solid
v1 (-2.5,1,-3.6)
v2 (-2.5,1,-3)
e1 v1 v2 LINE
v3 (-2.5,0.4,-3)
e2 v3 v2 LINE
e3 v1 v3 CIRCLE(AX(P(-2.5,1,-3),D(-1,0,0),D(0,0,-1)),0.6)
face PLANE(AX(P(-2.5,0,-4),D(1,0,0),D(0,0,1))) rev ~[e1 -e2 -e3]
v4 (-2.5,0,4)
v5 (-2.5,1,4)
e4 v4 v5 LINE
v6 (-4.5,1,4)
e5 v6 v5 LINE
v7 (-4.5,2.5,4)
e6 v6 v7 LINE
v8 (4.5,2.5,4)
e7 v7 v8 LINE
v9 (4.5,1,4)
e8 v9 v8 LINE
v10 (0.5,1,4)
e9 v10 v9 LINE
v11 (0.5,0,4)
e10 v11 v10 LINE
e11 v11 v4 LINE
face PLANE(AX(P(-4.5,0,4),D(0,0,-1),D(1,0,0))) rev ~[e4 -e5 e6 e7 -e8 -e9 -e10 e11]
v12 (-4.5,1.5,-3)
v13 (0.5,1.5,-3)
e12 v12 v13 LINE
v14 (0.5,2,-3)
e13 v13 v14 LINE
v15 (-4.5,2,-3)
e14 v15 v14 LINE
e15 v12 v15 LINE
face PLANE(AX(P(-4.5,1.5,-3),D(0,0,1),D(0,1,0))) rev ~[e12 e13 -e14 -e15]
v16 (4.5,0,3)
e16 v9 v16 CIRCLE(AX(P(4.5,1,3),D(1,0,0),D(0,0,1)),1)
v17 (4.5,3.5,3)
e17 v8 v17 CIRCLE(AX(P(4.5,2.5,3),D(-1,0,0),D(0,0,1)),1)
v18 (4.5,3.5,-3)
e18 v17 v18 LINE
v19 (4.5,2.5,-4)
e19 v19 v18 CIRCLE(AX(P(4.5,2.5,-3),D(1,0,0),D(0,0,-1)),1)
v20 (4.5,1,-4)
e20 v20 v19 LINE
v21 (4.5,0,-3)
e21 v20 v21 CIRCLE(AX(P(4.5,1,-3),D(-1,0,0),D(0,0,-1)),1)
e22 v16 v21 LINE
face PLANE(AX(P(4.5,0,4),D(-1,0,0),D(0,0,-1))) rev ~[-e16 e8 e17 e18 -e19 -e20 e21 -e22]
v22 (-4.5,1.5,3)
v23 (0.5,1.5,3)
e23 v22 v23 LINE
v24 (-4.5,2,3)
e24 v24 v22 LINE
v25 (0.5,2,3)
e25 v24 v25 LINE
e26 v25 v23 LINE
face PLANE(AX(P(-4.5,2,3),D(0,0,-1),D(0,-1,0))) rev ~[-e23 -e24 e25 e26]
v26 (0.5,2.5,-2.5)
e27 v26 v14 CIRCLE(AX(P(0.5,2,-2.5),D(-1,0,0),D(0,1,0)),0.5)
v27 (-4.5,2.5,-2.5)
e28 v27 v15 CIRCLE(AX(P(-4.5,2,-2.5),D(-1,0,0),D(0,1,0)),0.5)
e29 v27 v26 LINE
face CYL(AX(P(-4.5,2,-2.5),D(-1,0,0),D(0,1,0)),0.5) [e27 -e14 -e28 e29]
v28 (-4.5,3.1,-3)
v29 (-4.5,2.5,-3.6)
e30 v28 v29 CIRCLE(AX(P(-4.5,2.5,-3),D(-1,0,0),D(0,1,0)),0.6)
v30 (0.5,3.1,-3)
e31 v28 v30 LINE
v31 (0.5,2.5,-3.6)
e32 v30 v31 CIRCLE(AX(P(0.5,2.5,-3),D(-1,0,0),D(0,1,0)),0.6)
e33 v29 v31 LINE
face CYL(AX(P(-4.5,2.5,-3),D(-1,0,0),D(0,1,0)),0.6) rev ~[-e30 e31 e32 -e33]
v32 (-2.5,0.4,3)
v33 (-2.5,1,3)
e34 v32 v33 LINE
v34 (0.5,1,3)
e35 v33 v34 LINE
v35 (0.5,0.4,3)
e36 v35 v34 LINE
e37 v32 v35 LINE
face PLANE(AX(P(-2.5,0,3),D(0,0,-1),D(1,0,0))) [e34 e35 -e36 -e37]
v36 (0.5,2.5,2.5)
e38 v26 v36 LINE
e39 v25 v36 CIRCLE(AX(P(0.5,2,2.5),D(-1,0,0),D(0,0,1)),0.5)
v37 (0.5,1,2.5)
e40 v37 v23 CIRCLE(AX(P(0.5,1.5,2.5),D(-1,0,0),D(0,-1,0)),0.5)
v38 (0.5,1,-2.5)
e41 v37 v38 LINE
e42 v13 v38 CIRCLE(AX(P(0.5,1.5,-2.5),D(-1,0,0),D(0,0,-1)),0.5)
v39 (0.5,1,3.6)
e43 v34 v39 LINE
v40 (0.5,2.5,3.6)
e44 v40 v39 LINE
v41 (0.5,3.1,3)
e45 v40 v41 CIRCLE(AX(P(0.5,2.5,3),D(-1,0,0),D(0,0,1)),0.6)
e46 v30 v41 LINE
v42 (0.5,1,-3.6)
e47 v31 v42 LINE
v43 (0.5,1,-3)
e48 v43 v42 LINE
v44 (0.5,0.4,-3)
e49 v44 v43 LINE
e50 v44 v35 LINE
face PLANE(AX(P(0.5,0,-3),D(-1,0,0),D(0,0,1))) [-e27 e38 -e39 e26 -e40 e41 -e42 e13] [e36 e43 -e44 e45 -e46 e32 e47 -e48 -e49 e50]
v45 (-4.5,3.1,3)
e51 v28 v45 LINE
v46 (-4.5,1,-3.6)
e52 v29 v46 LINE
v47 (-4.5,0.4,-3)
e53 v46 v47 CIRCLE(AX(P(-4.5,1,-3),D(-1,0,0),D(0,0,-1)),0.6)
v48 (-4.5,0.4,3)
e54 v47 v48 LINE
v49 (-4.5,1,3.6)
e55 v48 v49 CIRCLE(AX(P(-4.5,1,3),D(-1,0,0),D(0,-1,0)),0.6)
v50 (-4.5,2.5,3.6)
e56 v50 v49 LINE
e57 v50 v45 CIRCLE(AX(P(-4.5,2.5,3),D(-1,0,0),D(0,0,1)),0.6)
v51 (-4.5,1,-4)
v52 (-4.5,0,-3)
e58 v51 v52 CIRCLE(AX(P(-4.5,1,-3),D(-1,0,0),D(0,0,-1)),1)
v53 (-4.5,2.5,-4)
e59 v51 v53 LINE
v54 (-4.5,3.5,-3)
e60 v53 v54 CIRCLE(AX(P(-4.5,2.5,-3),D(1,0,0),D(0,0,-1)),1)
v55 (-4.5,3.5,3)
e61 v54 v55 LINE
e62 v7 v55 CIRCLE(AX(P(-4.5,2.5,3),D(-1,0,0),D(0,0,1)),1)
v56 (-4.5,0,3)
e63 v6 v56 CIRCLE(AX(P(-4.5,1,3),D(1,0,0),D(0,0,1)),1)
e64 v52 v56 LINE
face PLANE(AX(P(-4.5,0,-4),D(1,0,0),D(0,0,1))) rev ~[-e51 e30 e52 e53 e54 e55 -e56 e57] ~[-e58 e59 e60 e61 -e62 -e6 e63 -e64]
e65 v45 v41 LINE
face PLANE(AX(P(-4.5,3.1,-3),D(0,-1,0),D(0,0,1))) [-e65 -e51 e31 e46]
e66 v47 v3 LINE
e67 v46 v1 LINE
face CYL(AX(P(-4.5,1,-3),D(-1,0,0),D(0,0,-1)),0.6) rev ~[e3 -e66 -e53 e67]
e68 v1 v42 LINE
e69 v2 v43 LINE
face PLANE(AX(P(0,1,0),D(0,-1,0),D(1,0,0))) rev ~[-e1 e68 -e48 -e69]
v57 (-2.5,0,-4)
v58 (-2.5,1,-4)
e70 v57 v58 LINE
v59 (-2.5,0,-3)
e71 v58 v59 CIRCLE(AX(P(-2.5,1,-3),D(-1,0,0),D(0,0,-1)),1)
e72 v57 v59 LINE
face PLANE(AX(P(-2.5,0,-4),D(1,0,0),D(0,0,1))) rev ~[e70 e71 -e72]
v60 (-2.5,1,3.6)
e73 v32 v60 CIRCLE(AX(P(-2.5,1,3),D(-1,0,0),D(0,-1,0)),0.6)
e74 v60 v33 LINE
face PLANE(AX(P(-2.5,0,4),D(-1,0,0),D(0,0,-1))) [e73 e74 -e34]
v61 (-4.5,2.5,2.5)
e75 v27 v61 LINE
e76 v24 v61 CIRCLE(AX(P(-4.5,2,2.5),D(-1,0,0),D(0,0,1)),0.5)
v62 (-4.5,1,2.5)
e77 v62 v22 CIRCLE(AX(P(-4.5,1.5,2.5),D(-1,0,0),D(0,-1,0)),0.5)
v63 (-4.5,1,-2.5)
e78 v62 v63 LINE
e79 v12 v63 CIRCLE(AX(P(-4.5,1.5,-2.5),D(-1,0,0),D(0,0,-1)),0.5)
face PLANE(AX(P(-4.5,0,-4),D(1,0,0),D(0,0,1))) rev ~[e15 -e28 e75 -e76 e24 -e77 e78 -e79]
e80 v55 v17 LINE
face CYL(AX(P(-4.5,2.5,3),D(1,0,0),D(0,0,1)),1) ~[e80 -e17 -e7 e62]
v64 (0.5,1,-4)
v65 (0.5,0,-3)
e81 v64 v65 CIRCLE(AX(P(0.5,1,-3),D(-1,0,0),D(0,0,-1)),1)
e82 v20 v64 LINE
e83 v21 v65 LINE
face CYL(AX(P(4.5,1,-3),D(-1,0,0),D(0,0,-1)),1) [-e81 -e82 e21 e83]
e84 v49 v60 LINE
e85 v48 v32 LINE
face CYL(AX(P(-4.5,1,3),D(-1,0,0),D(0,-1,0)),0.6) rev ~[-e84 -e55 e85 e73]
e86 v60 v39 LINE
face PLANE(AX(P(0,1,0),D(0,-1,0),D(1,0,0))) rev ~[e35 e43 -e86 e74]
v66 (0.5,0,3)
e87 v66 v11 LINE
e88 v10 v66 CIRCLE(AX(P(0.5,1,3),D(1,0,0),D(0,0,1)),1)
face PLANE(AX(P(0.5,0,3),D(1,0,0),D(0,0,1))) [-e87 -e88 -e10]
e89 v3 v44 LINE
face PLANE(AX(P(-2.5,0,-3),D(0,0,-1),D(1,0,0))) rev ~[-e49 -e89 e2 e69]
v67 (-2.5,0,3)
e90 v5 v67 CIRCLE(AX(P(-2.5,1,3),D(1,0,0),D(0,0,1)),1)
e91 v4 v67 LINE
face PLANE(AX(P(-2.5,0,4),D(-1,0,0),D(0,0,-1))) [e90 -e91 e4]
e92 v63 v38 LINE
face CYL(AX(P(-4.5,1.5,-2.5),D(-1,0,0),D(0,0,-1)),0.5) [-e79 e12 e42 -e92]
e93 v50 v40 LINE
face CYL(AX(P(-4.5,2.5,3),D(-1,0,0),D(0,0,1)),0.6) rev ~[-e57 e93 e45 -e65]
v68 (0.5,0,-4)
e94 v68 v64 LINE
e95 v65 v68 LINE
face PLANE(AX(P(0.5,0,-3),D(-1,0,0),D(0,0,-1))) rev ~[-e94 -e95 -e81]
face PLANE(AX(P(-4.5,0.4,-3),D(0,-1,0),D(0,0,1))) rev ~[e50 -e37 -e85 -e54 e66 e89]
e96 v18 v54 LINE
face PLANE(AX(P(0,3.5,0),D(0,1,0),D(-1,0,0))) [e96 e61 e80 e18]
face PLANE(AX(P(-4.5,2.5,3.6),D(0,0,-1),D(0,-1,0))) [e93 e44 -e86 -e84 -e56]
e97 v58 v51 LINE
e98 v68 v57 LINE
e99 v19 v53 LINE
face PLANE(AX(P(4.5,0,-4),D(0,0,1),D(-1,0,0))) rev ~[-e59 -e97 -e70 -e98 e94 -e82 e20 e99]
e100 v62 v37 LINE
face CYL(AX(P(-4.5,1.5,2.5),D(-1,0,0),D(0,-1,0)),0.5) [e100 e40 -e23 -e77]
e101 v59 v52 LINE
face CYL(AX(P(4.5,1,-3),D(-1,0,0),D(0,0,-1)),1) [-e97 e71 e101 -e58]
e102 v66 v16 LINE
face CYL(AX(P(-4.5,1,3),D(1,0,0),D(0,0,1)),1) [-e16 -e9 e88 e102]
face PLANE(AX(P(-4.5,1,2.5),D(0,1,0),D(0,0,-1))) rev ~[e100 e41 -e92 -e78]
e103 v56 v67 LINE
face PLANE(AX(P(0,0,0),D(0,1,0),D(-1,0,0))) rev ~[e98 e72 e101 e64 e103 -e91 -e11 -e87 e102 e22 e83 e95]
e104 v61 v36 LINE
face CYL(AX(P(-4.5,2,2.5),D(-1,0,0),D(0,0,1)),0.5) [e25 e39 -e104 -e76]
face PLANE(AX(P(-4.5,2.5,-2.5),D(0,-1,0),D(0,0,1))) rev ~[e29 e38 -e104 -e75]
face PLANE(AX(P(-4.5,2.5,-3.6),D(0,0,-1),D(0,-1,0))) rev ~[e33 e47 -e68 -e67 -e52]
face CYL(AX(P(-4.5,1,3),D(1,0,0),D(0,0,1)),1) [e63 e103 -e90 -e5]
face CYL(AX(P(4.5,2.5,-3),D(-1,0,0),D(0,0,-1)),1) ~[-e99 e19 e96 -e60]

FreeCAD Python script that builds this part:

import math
import FreeCAD as App
import Part
import Sketcher
Q = App.Units.Quantity


def edges_at(feature, points):
    """Names of the edges that pass closest to the given points."""
    edges = feature.Shape.Edges
    near = lambda p: min(range(len(edges)), key=lambda i: edges[i].distToShape(Part.Vertex(*p))[0])
    return sorted({f"Edge{near(p) + 1}" for p in points})

doc = App.newDocument("Part")
body = doc.addObject("PartDesign::Body", "Body")

sketch1 = doc.addObject("Sketcher::SketchObject", "Sketch")
body.addObject(sketch1)
sketch1.AttachmentSupport = (doc.XZ_Plane, [""])
sketch1.MapMode = "FlatFace"
sketch1.addGeometry([
    Part.LineSegment(App.Vector(-4, -4, 0), App.Vector(-4, 4, 0)),
    Part.LineSegment(App.Vector(-4, 4, 0), App.Vector(4, 4, 0)),
    Part.LineSegment(App.Vector(4, 4, 0), App.Vector(4, -4, 0)),
    Part.LineSegment(App.Vector(4, -4, 0), App.Vector(-4, -4, 0)),
], False)
sketch1.addConstraint([
    Sketcher.Constraint("Coincident", 0, 2, 1, 1),
    Sketcher.Constraint("Coincident", 1, 2, 2, 1),
    Sketcher.Constraint("Coincident", 2, 2, 3, 1),
    Sketcher.Constraint("Coincident", 3, 2, 0, 1),
    Sketcher.Constraint("Vertical", 0),
    Sketcher.Constraint("Horizontal", 1),
    Sketcher.Constraint("Vertical", 2),
    Sketcher.Constraint("Horizontal", 3),
    Sketcher.Constraint("Symmetric", 0, 2, 2, 2, -1, 1),
    Sketcher.Constraint("DistanceX", 1, 1, 1, 2, Q("9 mm")),
    Sketcher.Constraint("DistanceY", 0, 1, 0, 2, Q("8 mm")),
])
pad1 = doc.addObject("PartDesign::Pad", "Pad")
body.addObject(pad1)
pad1.Profile = sketch1
pad1.Length = 3.5
pad1.Reversed = True
doc.recompute()

fillet = doc.addObject("PartDesign::Fillet", "Fillet")
body.addObject(fillet)
fillet.Base = (pad1, edges_at(pad1, [
    (0, 3.5, 4),
    (0, 0, 4),
    (0, 3.5, -4),
    (0, 0, -4),
]))
fillet.Radius = 1

sketch2 = doc.addObject("Sketcher::SketchObject", "Sketch001")
body.addObject(sketch2)
sketch2.AttachmentSupport = (doc.YZ_Plane, [""])
sketch2.MapMode = "FlatFace"
sketch2.AttachmentOffset = App.Placement(App.Vector(0, 0, -4.5), App.Rotation())
sketch2.addGeometry([
    Part.LineSegment(App.Vector(3.1, 3, 0), App.Vector(3.1, -3, 0)),
    Part.ArcOfCircle(Part.Circle(App.Vector(2.5, -3, 0), App.Vector(0, 0, 1), 0.6), math.radians(-90), math.radians(0)),
    Part.LineSegment(App.Vector(2.5, -3.6, 0), App.Vector(1, -3.6, 0)),
    Part.ArcOfCircle(Part.Circle(App.Vector(1, -3, 0), App.Vector(0, 0, 1), 0.6), math.radians(180), math.radians(270)),
    Part.LineSegment(App.Vector(0.4, -3, 0), App.Vector(0.4, 3, 0)),
    Part.ArcOfCircle(Part.Circle(App.Vector(1, 3, 0), App.Vector(0, 0, 1), 0.6), math.radians(90), math.radians(180)),
    Part.LineSegment(App.Vector(1, 3.6, 0), App.Vector(2.5, 3.6, 0)),
    Part.ArcOfCircle(Part.Circle(App.Vector(2.5, 3, 0), App.Vector(0, 0, 1), 0.6), math.radians(0), math.radians(90)),
    Part.ArcOfCircle(Part.Circle(App.Vector(2, -2.5, 0), App.Vector(0, 0, 1), 0.5), math.radians(-90), math.radians(0)),
    Part.LineSegment(App.Vector(2.5, -2.5, 0), App.Vector(2.5, 2.5, 0)),
    Part.ArcOfCircle(Part.Circle(App.Vector(2, 2.5, 0), App.Vector(0, 0, 1), 0.5), math.radians(0), math.radians(90)),
    Part.LineSegment(App.Vector(2, 3, 0), App.Vector(1.5, 3, 0)),
    Part.ArcOfCircle(Part.Circle(App.Vector(1.5, 2.5, 0), App.Vector(0, 0, 1), 0.5), math.radians(90), math.radians(180)),
    Part.LineSegment(App.Vector(1, 2.5, 0), App.Vector(1, -2.5, 0)),
    Part.ArcOfCircle(Part.Circle(App.Vector(1.5, -2.5, 0), App.Vector(0, 0, 1), 0.5), math.radians(180), math.radians(270)),
    Part.LineSegment(App.Vector(1.5, -3, 0), App.Vector(2, -3, 0)),
], False)
sketch2.addConstraint([
    Sketcher.Constraint("Tangent", 0, 2, 1, 2),
    Sketcher.Constraint("Tangent", 1, 1, 2, 1),
    Sketcher.Constraint("Tangent", 2, 2, 3, 2),
    Sketcher.Constraint("Tangent", 3, 1, 4, 1),
    Sketcher.Constraint("Tangent", 4, 2, 5, 2),
    Sketcher.Constraint("Tangent", 5, 1, 6, 1),
    Sketcher.Constraint("Tangent", 6, 2, 7, 2),
    Sketcher.Constraint("Tangent", 7, 1, 0, 1),
    Sketcher.Constraint("Tangent", 8, 2, 9, 1),
    Sketcher.Constraint("Tangent", 9, 2, 10, 1),
    Sketcher.Constraint("Tangent", 10, 2, 11, 1),
    Sketcher.Constraint("Tangent", 11, 2, 12, 1),
    Sketcher.Constraint("Tangent", 12, 2, 13, 1),
    Sketcher.Constraint("Tangent", 13, 2, 14, 1),
    Sketcher.Constraint("Tangent", 14, 2, 15, 1),
    Sketcher.Constraint("Tangent", 15, 2, 8, 1),
    Sketcher.Constraint("Vertical", 0),
    Sketcher.Constraint("Horizontal", 2),
    Sketcher.Constraint("Vertical", 4),
    Sketcher.Constraint("Horizontal", 6),
    Sketcher.Constraint("Vertical", 9),
    Sketcher.Constraint("Horizontal", 11),
    Sketcher.Constraint("Vertical", 13),
    Sketcher.Constraint("Horizontal", 15),
    Sketcher.Constraint("Equal", 1, 3),
    Sketcher.Constraint("Equal", 3, 5),
    Sketcher.Constraint("Equal", 5, 7),
    Sketcher.Constraint("Equal", 8, 10),
    Sketcher.Constraint("Equal", 10, 12),
    Sketcher.Constraint("Equal", 12, 14),
    Sketcher.Constraint("Horizontal", 7, 1, 10, 2),
    Sketcher.Constraint("Horizontal", 3, 1, 14, 2),
    Sketcher.Constraint("Vertical", 6, 2, 8, 2),
    Sketcher.Constraint("Vertical", 5, 1, 12, 2),
    Sketcher.Constraint("Radius", 8, Q("0.5 mm")),
    Sketcher.Constraint("DistanceX", 11, 2, 11, 1, Q("0.5 mm")),
    Sketcher.Constraint("DistanceX", -1, 1, 3, 1, Q("0.4 mm")),
    Sketcher.Constraint("Radius", 1, Q("0.6 mm")),
    Sketcher.Constraint("DistanceY", 0, 2, 0, 1, Q("6 mm")),
    Sketcher.Constraint("DistanceY", 1, 3, -1, 1, Q("3 mm")),
])
pocket1 = doc.addObject("PartDesign::Pocket", "Pocket")
body.addObject(pocket1)
pocket1.Profile = sketch2
pocket1.Length = 5
pocket1.Reversed = True

sketch3 = doc.addObject("Sketcher::SketchObject", "Sketch002")
body.addObject(sketch3)
sketch3.AttachmentSupport = (doc.XZ_Plane, [""])
sketch3.MapMode = "FlatFace"
sketch3.addGeometry([
    Part.LineSegment(App.Vector(-2.5, 4, 0), App.Vector(-2.5, 3, 0)),
    Part.LineSegment(App.Vector(-2.5, 3, 0), App.Vector(0.5, 3, 0)),
    Part.LineSegment(App.Vector(0.5, 3, 0), App.Vector(0.5, 4, 0)),
    Part.LineSegment(App.Vector(0.5, 4, 0), App.Vector(-2.5, 4, 0)),
    Part.LineSegment(App.Vector(0.5, -3, 0), App.Vector(-2.5, -3, 0)),
    Part.LineSegment(App.Vector(-2.5, -3, 0), App.Vector(-2.5, -4, 0)),
    Part.LineSegment(App.Vector(-2.5, -4, 0), App.Vector(0.5, -4, 0)),
    Part.LineSegment(App.Vector(0.5, -4, 0), App.Vector(0.5, -3, 0)),
], False)
sketch3.addConstraint([
    Sketcher.Constraint("Coincident", 0, 2, 1, 1),
    Sketcher.Constraint("Coincident", 1, 2, 2, 1),
    Sketcher.Constraint("Coincident", 2, 2, 3, 1),
    Sketcher.Constraint("Coincident", 3, 2, 0, 1),
    Sketcher.Constraint("Coincident", 4, 2, 5, 1),
    Sketcher.Constraint("Coincident", 5, 2, 6, 1),
    Sketcher.Constraint("Coincident", 6, 2, 7, 1),
    Sketcher.Constraint("Coincident", 7, 2, 4, 1),
    Sketcher.Constraint("Vertical", 0),
    Sketcher.Constraint("Horizontal", 1),
    Sketcher.Constraint("Vertical", 2),
    Sketcher.Constraint("Horizontal", 3),
    Sketcher.Constraint("Horizontal", 4),
    Sketcher.Constraint("Vertical", 5),
    Sketcher.Constraint("Horizontal", 6),
    Sketcher.Constraint("Vertical", 7),
    Sketcher.Constraint("Symmetric", 0, 2, 4, 2, -1),
    Sketcher.Constraint("Symmetric", 2, 2, 6, 2, -1),
    Sketcher.Constraint("DistanceX", 1, 1, 1, 2, Q("3 mm")),
    Sketcher.Constraint("DistanceY", -1, 1, 0, 2, Q("3 mm")),
    Sketcher.Constraint("DistanceY", 0, 2, 0, 1, Q("1 mm")),
    Sketcher.Constraint("DistanceX", 0, 2, -1, 1, Q("2.5 mm")),
])
pad2 = doc.addObject("PartDesign::Pad", "Pad001")
body.addObject(pad2)
pad2.Profile = sketch3
pad2.Length = 1
pad2.Reversed = True

doc.recompute()
